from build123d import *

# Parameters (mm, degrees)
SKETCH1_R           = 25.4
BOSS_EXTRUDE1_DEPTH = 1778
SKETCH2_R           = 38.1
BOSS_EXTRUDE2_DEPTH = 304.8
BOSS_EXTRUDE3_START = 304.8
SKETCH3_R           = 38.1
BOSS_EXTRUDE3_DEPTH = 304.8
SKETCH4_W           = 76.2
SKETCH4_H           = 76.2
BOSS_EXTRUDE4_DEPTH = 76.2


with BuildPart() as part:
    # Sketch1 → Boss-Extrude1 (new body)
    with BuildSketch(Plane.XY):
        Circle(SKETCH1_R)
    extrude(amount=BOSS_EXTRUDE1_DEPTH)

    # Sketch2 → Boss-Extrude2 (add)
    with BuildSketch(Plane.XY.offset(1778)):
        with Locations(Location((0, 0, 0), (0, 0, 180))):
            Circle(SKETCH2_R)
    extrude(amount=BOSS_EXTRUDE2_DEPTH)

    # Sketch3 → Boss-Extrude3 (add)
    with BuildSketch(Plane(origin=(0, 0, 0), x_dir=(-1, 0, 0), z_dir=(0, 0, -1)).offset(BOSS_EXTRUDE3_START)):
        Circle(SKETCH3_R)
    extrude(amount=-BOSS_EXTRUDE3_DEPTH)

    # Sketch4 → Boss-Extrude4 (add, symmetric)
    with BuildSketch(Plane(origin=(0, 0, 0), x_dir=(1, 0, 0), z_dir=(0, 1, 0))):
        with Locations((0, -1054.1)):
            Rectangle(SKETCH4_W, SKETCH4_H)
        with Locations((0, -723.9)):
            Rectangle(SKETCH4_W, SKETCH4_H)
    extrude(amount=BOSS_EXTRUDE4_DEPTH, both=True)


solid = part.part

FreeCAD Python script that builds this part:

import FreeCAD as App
import Part
import Sketcher
from FreeCAD import Vector
Q = App.Units.Quantity

doc = App.newDocument("Part")
body = doc.addObject("PartDesign::Body", "Body")

# Sketch on XY plane
sketch1 = body.newObject("Sketcher::SketchObject", "Sketch")
sketch1.AttachmentSupport = (doc.getObject("XY_Plane"), [""])
sketch1.MapMode = "FlatFace"
sketch1.addGeometry(Part.Circle(Vector(0, 0, 0), Vector(0, 0, 1), 25), False)
sketch1.addConstraint(Sketcher.Constraint("Coincident", 0, 3, -1, 1))
sketch1.addConstraint(Sketcher.Constraint("Diameter", 0, Q("2 in")))
pad1 = body.newObject("PartDesign::Pad", "Pad")
pad1.Profile = sketch1
pad1.Length = Q("70 in")

# Sketch on XY plane
sketch2 = body.newObject("Sketcher::SketchObject", "Sketch001")
sketch2.AttachmentSupport = (doc.getObject("XY_Plane"), [""])
sketch2.MapMode = "FlatFace"
sketch2.AttachmentOffset = App.Placement(Vector(0, 0, 70 * 25.4), App.Rotation())
sketch2.addGeometry(Part.Circle(Vector(0, 0, 0), Vector(0, 0, 1), 38), False)
sketch2.addConstraint(Sketcher.Constraint("Coincident", 0, 3, -1, 1))
sketch2.addConstraint(Sketcher.Constraint("Diameter", 0, Q("3 in")))
pad2 = body.newObject("PartDesign::Pad", "Pad001")
pad2.Profile = sketch2
pad2.Length = Q("12 in")

# Sketch on XY plane
sketch3 = body.newObject("Sketcher::SketchObject", "Sketch002")
sketch3.AttachmentSupport = (doc.getObject("XY_Plane"), [""])
sketch3.MapMode = "FlatFace"
sketch3.AttachmentOffset = App.Placement(Vector(0, 0, -12 * 25.4), App.Rotation())
sketch3.addGeometry(Part.Circle(Vector(0, 0, 0), Vector(0, 0, 1), 38), False)
sketch3.addConstraint(Sketcher.Constraint("Coincident", 0, 3, -1, 1))
sketch3.addConstraint(Sketcher.Constraint("Diameter", 0, Q("3 in")))
pad3 = body.newObject("PartDesign::Pad", "Pad002")
pad3.Profile = sketch3
pad3.Length = Q("12 in")

# Sketch on XZ plane
sketch4 = body.newObject("Sketcher::SketchObject", "Sketch003")
sketch4.AttachmentSupport = (doc.getObject("XZ_Plane"), [""])
sketch4.MapMode = "FlatFace"
sketch4.addGeometry(Part.LineSegment(Vector(-38, 1016, 0), Vector(-38, 1092, 0)), False)
sketch4.addGeometry(Part.LineSegment(Vector(-38, 1092, 0), Vector(38, 1092, 0)), False)
sketch4.addGeometry(Part.LineSegment(Vector(38, 1092, 0), Vector(38, 1016, 0)), False)
sketch4.addGeometry(Part.LineSegment(Vector(38, 1016, 0), Vector(-38, 1016, 0)), False)
sketch4.addGeometry(Part.LineSegment(Vector(-38, 686, 0), Vector(-38, 762, 0)), False)
sketch4.addGeometry(Part.LineSegment(Vector(-38, 762, 0), Vector(38, 762, 0)), False)
sketch4.addGeometry(Part.LineSegment(Vector(38, 762, 0), Vector(38, 686, 0)), False)
sketch4.addGeometry(Part.LineSegment(Vector(38, 686, 0), Vector(-38, 686, 0)), False)
sketch4.addConstraint(Sketcher.Constraint("Coincident", 0, 2, 1, 1))
sketch4.addConstraint(Sketcher.Constraint("Coincident", 1, 2, 2, 1))
sketch4.addConstraint(Sketcher.Constraint("Coincident", 2, 2, 3, 1))
sketch4.addConstraint(Sketcher.Constraint("Coincident", 3, 2, 0, 1))
sketch4.addConstraint(Sketcher.Constraint("Coincident", 4, 2, 5, 1))
sketch4.addConstraint(Sketcher.Constraint("Coincident", 5, 2, 6, 1))
sketch4.addConstraint(Sketcher.Constraint("Coincident", 6, 2, 7, 1))
sketch4.addConstraint(Sketcher.Constraint("Coincident", 7, 2, 4, 1))
sketch4.addConstraint(Sketcher.Constraint("Vertical", 0))
sketch4.addConstraint(Sketcher.Constraint("Horizontal", 1))
sketch4.addConstraint(Sketcher.Constraint("Vertical", 2))
sketch4.addConstraint(Sketcher.Constraint("Horizontal", 3))
sketch4.addConstraint(Sketcher.Constraint("Vertical", 4))
sketch4.addConstraint(Sketcher.Constraint("Horizontal", 5))
sketch4.addConstraint(Sketcher.Constraint("Vertical", 6))
sketch4.addConstraint(Sketcher.Constraint("Horizontal", 7))
sketch4.addConstraint(Sketcher.Constraint("Vertical", 3, 2, 4, 2))
sketch4.addConstraint(Sketcher.Constraint("Vertical", 2, 2, 5, 2))
sketch4.addConstraint(Sketcher.Constraint("Equal", 7, 0))
sketch4.addConstraint(Sketcher.Constraint("Equal", 2, 4))
sketch4.addConstraint(Sketcher.Constraint("DistanceX", 1, 1, 1, 2, Q("3 in")))
sketch4.addConstraint(Sketcher.Constraint("DistanceY", -1, 1, 0, 2, Q("43 in")))
sketch4.addConstraint(Sketcher.Constraint("DistanceY", -1, 1, 4, 2, Q("30 in")))
sketch4.addConstraint(Sketcher.Constraint("DistanceX", 0, 2, -1, 1, Q("1.5 in")))
pad4 = body.newObject("PartDesign::Pad", "Pad003")
pad4.Profile = sketch4
pad4.Length = Q("6 in")
pad4.Midplane = True

doc.recompute()
